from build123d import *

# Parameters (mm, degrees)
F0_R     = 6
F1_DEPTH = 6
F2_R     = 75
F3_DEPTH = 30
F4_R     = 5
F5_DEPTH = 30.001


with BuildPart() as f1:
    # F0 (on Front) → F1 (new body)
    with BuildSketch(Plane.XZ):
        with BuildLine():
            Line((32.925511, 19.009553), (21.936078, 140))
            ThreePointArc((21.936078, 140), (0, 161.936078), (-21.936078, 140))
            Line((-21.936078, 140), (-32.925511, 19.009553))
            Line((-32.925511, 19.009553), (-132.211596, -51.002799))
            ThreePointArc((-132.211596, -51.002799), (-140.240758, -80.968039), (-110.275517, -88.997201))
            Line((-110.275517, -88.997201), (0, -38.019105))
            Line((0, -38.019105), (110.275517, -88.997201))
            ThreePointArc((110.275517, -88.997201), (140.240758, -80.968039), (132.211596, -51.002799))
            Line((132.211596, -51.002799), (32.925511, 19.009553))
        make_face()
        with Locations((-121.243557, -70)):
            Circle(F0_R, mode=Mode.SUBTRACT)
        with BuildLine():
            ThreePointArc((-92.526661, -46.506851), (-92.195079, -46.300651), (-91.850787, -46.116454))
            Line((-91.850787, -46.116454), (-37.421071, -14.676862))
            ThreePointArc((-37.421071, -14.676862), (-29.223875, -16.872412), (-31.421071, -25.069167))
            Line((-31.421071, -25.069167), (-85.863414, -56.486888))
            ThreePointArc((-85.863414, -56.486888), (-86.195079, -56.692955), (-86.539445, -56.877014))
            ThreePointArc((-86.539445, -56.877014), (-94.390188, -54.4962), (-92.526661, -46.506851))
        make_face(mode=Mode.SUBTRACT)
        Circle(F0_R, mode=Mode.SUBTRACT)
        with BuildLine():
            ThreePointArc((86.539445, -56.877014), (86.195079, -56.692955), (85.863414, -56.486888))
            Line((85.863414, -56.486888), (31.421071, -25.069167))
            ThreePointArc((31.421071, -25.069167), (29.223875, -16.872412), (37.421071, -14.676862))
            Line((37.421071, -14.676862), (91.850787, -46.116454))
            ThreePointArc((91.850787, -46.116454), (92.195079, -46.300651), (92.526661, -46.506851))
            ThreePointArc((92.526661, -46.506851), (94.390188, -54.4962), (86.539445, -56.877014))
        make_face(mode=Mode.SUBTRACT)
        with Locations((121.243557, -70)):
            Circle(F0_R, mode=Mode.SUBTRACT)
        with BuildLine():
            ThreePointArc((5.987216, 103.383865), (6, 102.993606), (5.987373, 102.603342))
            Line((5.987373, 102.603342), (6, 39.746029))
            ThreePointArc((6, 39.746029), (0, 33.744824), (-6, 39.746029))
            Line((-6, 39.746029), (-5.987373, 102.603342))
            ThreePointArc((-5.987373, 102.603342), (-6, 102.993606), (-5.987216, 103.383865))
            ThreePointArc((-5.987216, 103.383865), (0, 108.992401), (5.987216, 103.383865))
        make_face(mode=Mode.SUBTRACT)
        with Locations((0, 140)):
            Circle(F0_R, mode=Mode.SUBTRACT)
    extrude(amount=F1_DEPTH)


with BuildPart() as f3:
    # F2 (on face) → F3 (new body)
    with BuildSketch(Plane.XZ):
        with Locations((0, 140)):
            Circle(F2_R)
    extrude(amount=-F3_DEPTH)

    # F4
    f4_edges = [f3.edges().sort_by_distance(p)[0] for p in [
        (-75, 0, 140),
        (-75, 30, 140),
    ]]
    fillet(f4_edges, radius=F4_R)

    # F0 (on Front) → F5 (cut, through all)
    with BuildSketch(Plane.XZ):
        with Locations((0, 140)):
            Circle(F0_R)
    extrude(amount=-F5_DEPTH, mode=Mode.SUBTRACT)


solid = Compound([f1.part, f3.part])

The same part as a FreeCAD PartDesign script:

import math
import FreeCAD as App
import Part
import Sketcher

V = App.Vector


def edges_at(feature, points):
    """Names of the edges that pass closest to the given points."""
    edges = feature.Shape.Edges
    near = lambda p: min(range(len(edges)), key=lambda i: edges[i].distToShape(Part.Vertex(*p))[0])
    return sorted({f"Edge{near(p) + 1}" for p in points})

doc = App.newDocument("Part")
body = doc.addObject("PartDesign::Body", "Body")

sketch1 = body.newObject("Sketcher::SketchObject", "Sketch")
sketch1.AttachmentSupport = (doc.getObject("XZ_Plane"), [""])
sketch1.MapMode = "FlatFace"
sketch1.addGeometry(Part.LineSegment(V(32.925511, 19.009553, 0), V(21.936078, 140, 0)), False)
sketch1.addGeometry(Part.ArcOfCircle(Part.Circle(V(0, 140, 0), V(0, 0, 1), 21.936078), math.radians(0), math.radians(180)), False)
sketch1.addGeometry(Part.LineSegment(V(-21.936078, 140, 0), V(-32.925511, 19.009553, 0)), False)
sketch1.addGeometry(Part.LineSegment(V(-32.925511, 19.009553, 0), V(-132.211596, -51.002799, 0)), False)
sketch1.addGeometry(Part.ArcOfCircle(Part.Circle(V(-121.243557, -70, 0), V(0, 0, 1), 21.936078), math.radians(120), math.radians(300.000001)), False)
sketch1.addGeometry(Part.LineSegment(V(-110.275517, -88.997201, 0), V(0, -38.019105, 0)), False)
sketch1.addGeometry(Part.LineSegment(V(0, -38.019105, 0), V(110.275517, -88.997201, 0)), False)
sketch1.addGeometry(Part.ArcOfCircle(Part.Circle(V(121.243557, -70, 0), V(0, 0, 1), 21.936078), math.radians(-120.000001), math.radians(60)), False)
sketch1.addGeometry(Part.LineSegment(V(132.211596, -51.002799, 0), V(32.925511, 19.009553, 0)), False)
sketch1.addGeometry(Part.Circle(V(-121.243557, -70, 0), V(0, 0, 1), 6), False)
sketch1.addGeometry(Part.ArcOfCircle(Part.Circle(V(-89.194035, -51.4962, 0), V(0, 0, 1), 6), math.radians(123.740863), math.radians(296.259133)), False)
sketch1.addGeometry(Part.ArcOfCircle(Part.Circle(V(-89.19395, -51.496349, 0), V(0, 0, 1), 6.000171), math.radians(116.282257), math.radians(123.740751)), False)
sketch1.addGeometry(Part.LineSegment(V(-91.850787, -46.116454, 0), V(-37.421071, -14.676862, 0)), False)
sketch1.addGeometry(Part.ArcOfCircle(Part.Circle(V(-34.420028, -19.872412, 0), V(0, 0, 1), 6), math.radians(-60.011506), math.radians(120.011505)), False)
sketch1.addGeometry(Part.LineSegment(V(-31.421071, -25.069167, 0), V(-85.863414, -56.486888, 0)), False)
sketch1.addGeometry(Part.ArcOfCircle(Part.Circle(V(-89.194147, -51.496012, 0), V(0, 0, 1), 6.000218), math.radians(-63.740706), math.radians(-56.282266)), False)
sketch1.addGeometry(Part.ArcOfCircle(Part.Circle(V(89.194035, -51.4962, 0), V(0, 0, 1), 6), math.radians(-116.259133), math.radians(56.259137)), False)
sketch1.addGeometry(Part.ArcOfCircle(Part.Circle(V(89.194147, -51.496012, 0), V(0, 0, 1), 6.000218), math.radians(-123.717734), math.radians(-116.259294)), False)
sketch1.addGeometry(Part.LineSegment(V(85.863414, -56.486888, 0), V(31.421071, -25.069167, 0)), False)
sketch1.addGeometry(Part.ArcOfCircle(Part.Circle(V(34.420028, -19.872412, 0), V(0, 0, 1), 6), math.radians(59.988495), math.radians(240.011506)), False)
sketch1.addGeometry(Part.LineSegment(V(37.421071, -14.676862, 0), V(91.850787, -46.116454, 0)), False)
sketch1.addGeometry(Part.ArcOfCircle(Part.Circle(V(89.19395, -51.496349, 0), V(0, 0, 1), 6.000171), math.radians(56.259249), math.radians(63.717743)), False)
sketch1.addGeometry(Part.Circle(V(121.243557, -70, 0), V(0, 0, 1), 6), False)
sketch1.addGeometry(Part.Circle(V(0, 0, 0), V(0, 0, 1), 6), False)
sketch1.addGeometry(Part.ArcOfCircle(Part.Circle(V(0, 102.992401, 0), V(0, 0, 1), 6), math.radians(3.740863), math.radians(176.259137)), False)
sketch1.addGeometry(Part.ArcOfCircle(Part.Circle(V(0.000021, 102.992399, 0), V(0, 0, 1), 5.999979), math.radians(-3.717844), math.radians(3.740893)), False)
sketch1.addGeometry(Part.LineSegment(V(5.987373, 102.603342, 0), V(6, 39.746029, 0)), False)
sketch1.addGeometry(Part.ArcOfCircle(Part.Circle(V(0, 39.744824, 0), V(0, 0, 1), 6), math.radians(179.988494), math.radians(360.011506)), False)
sketch1.addGeometry(Part.LineSegment(V(-6, 39.746029, 0), V(-5.987373, 102.603342, 0)), False)
sketch1.addGeometry(Part.ArcOfCircle(Part.Circle(V(-0.000021, 102.992399, 0), V(0, 0, 1), 5.999979), math.radians(176.259107), math.radians(183.717844)), False)
sketch1.addGeometry(Part.Circle(V(0, 140, 0), V(0, 0, 1), 6), False)
sketch1.addConstraint(Sketcher.Constraint("Coincident", 0, 2, 1, 1))
sketch1.addConstraint(Sketcher.Constraint("Coincident", 1, 2, 2, 1))
sketch1.addConstraint(Sketcher.Constraint("Coincident", 2, 2, 3, 1))
sketch1.addConstraint(Sketcher.Constraint("Coincident", 3, 2, 4, 1))
sketch1.addConstraint(Sketcher.Constraint("Coincident", 4, 2, 5, 1))
sketch1.addConstraint(Sketcher.Constraint("Coincident", 5, 2, 6, 1))
sketch1.addConstraint(Sketcher.Constraint("Coincident", 6, 2, 7, 1))
sketch1.addConstraint(Sketcher.Constraint("Coincident", 7, 2, 8, 1))
sketch1.addConstraint(Sketcher.Constraint("Coincident", 8, 2, 0, 1))
sketch1.addConstraint(Sketcher.Constraint("Coincident", 10, 1, 11, 2))
sketch1.addConstraint(Sketcher.Constraint("Coincident", 11, 1, 12, 1))
sketch1.addConstraint(Sketcher.Constraint("Coincident", 12, 2, 13, 2))
sketch1.addConstraint(Sketcher.Constraint("Coincident", 13, 1, 14, 1))
sketch1.addConstraint(Sketcher.Constraint("Coincident", 14, 2, 15, 2))
sketch1.addConstraint(Sketcher.Constraint("Coincident", 15, 1, 10, 2))
sketch1.addConstraint(Sketcher.Constraint("Coincident", 16, 1, 17, 2))
sketch1.addConstraint(Sketcher.Constraint("Coincident", 17, 1, 18, 1))
sketch1.addConstraint(Sketcher.Constraint("Coincident", 18, 2, 19, 2))
sketch1.addConstraint(Sketcher.Constraint("Coincident", 19, 1, 20, 1))
sketch1.addConstraint(Sketcher.Constraint("Coincident", 20, 2, 21, 2))
sketch1.addConstraint(Sketcher.Constraint("Coincident", 21, 1, 16, 2))
sketch1.addConstraint(Sketcher.Constraint("Coincident", 24, 1, 25, 2))
sketch1.addConstraint(Sketcher.Constraint("Coincident", 25, 1, 26, 1))
sketch1.addConstraint(Sketcher.Constraint("Coincident", 26, 2, 27, 2))
sketch1.addConstraint(Sketcher.Constraint("Coincident", 27, 1, 28, 1))
sketch1.addConstraint(Sketcher.Constraint("Coincident", 28, 2, 29, 2))
sketch1.addConstraint(Sketcher.Constraint("Coincident", 29, 1, 24, 2))
sketch1.addConstraint(Sketcher.Constraint("Coincident", 23, 3, -1, 1))
sketch1.addConstraint(Sketcher.Constraint("Coincident", 9, 3, 4, 3))
sketch1.addConstraint(Sketcher.Constraint("Coincident", 22, 3, 7, 3))
sketch1.addConstraint(Sketcher.Constraint("Coincident", 30, 3, 1, 3))
sketch1.addConstraint(Sketcher.Constraint("PointOnObject", 1, 3, -2))
sketch1.addConstraint(Sketcher.Constraint("PointOnObject", 24, 3, -2))
sketch1.addConstraint(Sketcher.Constraint("PointOnObject", 27, 3, -2))
sketch1.addConstraint(Sketcher.Constraint("PointOnObject", 5, 2, -2))
sketch1.addConstraint(Sketcher.Constraint("Diameter", 9, 12.0))
sketch1.addConstraint(Sketcher.Constraint("Diameter", 22, 12.0))
sketch1.addConstraint(Sketcher.Constraint("Diameter", 23, 12.0))
sketch1.addConstraint(Sketcher.Constraint("Diameter", 30, 12.0))
sketch1.addConstraint(Sketcher.Constraint("Radius", 10, 6.0))
sketch1.addConstraint(Sketcher.Constraint("Radius", 13, 6.0))
sketch1.addConstraint(Sketcher.Constraint("Radius", 16, 6.0))
sketch1.addConstraint(Sketcher.Constraint("Radius", 19, 6.0))
sketch1.addConstraint(Sketcher.Constraint("Radius", 24, 6.0))
sketch1.addConstraint(Sketcher.Constraint("Radius", 27, 6.0))
sketch1.addConstraint(Sketcher.Constraint("DistanceY", -1, 1, 1, 3, 140.0))
sketch1.addConstraint(Sketcher.Constraint("DistanceY", 4, 3, -1, 1, 70.0))
sketch1.addConstraint(Sketcher.Constraint("DistanceY", 7, 3, -1, 1, 70.0))
sketch1.addConstraint(Sketcher.Constraint("DistanceY", -1, 1, 0, 2, 140.0))
sketch1.addConstraint(Sketcher.Constraint("DistanceY", -1, 1, 1, 2, 140.0))
sketch1.addConstraint(Sketcher.Constraint("DistanceX", 12, 2, 13, 1, 6.0))
sketch1.addConstraint(Sketcher.Constraint("DistanceX", 18, 2, 19, 1, 6.0))
sketch1.addConstraint(Sketcher.Constraint("Radius", 4, 21.936078))
sketch1.addConstraint(Sketcher.Constraint("Radius", 7, 21.936078))
sketch1.addConstraint(Sketcher.Constraint("Radius", 11, 6.000171))
sketch1.addConstraint(Sketcher.Constraint("Radius", 15, 6.000218))
sketch1.addConstraint(Sketcher.Constraint("Radius", 17, 6.000218))
sketch1.addConstraint(Sketcher.Constraint("Radius", 21, 6.000171))
sketch1.addConstraint(Sketcher.Constraint("Radius", 25, 5.999979))
sketch1.addConstraint(Sketcher.Constraint("Radius", 29, 5.999979))
sketch1.addConstraint(Sketcher.Constraint("Radius", 1, 21.936078))
sketch1.addConstraint(Sketcher.Constraint("DistanceY", 4, 2, 10, 3, 37.501001))
sketch1.addConstraint(Sketcher.Constraint("DistanceY", 6, 2, 16, 3, 37.501001))
sketch1.addConstraint(Sketcher.Constraint("DistanceY", 15, 1, 15, 3, 5.381002))
sketch1.addConstraint(Sketcher.Constraint("DistanceY", 16, 1, 17, 3, 5.381002))
sketch1.addConstraint(Sketcher.Constraint("Distance", 0, 121.488501))
sketch1.addConstraint(Sketcher.Constraint("Distance", 2, 121.488501))
sketch1.addConstraint(Sketcher.Constraint("Distance", 3, 121.488502))
sketch1.addConstraint(Sketcher.Constraint("Distance", 5, 121.488501))
sketch1.addConstraint(Sketcher.Constraint("Distance", 6, 121.488501))
sketch1.addConstraint(Sketcher.Constraint("Distance", 8, 121.488502))
sketch1.addConstraint(Sketcher.Constraint("DistanceY", 10, 3, -1, 1, 51.4962))
sketch1.addConstraint(Sketcher.Constraint("DistanceY", 16, 3, -1, 1, 51.4962))
sketch1.addConstraint(Sketcher.Constraint("DistanceY", -1, 1, 24, 3, 102.992401))
sketch1.addConstraint(Sketcher.Constraint("DistanceY", -1, 1, 25, 3, 102.992399))
sketch1.addConstraint(Sketcher.Constraint("DistanceY", -1, 1, 29, 3, 102.992399))
sketch1.addConstraint(Sketcher.Constraint("DistanceY", 3, 2, -1, 1, 51.002799))
sketch1.addConstraint(Sketcher.Constraint("DistanceY", 7, 2, -1, 1, 51.002799))
sketch1.addConstraint(Sketcher.Constraint("DistanceY", 15, 3, 13, 3, 31.6236))
sketch1.addConstraint(Sketcher.Constraint("DistanceY", 17, 3, 13, 3, 31.6236))
sketch1.addConstraint(Sketcher.Constraint("DistanceY", 17, 3, 19, 3, 31.6236))
sketch1.addConstraint(Sketcher.Constraint("DistanceX", 11, 3, -1, 1, 89.19395))
sketch1.addConstraint(Sketcher.Constraint("DistanceY", 11, 3, -1, 1, 51.496349))
sketch1.addConstraint(Sketcher.Constraint("DistanceX", -1, 1, 21, 3, 89.19395))
sketch1.addConstraint(Sketcher.Constraint("DistanceY", 21, 3, -1, 1, 51.496349))
sketch1.addConstraint(Sketcher.Constraint("DistanceX", 2, 2, -1, 1, 32.925511))
sketch1.addConstraint(Sketcher.Constraint("DistanceX", 10, 1, -1, 1, 92.526661))
sketch1.addConstraint(Sketcher.Constraint("DistanceX", 12, 2, -1, 1, 37.421071))
sketch1.addConstraint(Sketcher.Constraint("DistanceY", 17, 1, -1, 1, 56.486888))
sketch1.addConstraint(Sketcher.Constraint("DistanceX", -1, 1, 18, 2, 31.421071))
sketch1.addConstraint(Sketcher.Constraint("DistanceY", 19, 1, -1, 1, 14.676862))
sketch1.addConstraint(Sketcher.Constraint("DistanceX", -1, 1, 21, 1, 92.526661))
sketch1.addConstraint(Sketcher.Constraint("DistanceY", -1, 1, 26, 2, 39.746029))
sketch1.addConstraint(Sketcher.Constraint("DistanceY", -1, 1, 27, 1, 39.746029))
sketch1.addConstraint(Sketcher.Constraint("DistanceY", -1, 1, 28, 2, 102.603342))
sketch1.addConstraint(Sketcher.Constraint("DistanceY", 10, 3, 13, 3, 31.623788))
sketch1.addConstraint(Sketcher.Constraint("DistanceX", 4, 3, 13, 3, 86.823529))
sketch1.addConstraint(Sketcher.Constraint("DistanceY", 2, 2, 27, 3, 20.735271))
sketch1.addConstraint(Sketcher.Constraint("DistanceX", 11, 1, 15, 3, 2.65664))
sketch1.addConstraint(Sketcher.Constraint("DistanceY", 14, 2, 11, 3, 4.990539))
sketch1.addConstraint(Sketcher.Constraint("DistanceX", 17, 3, 20, 2, 2.65664))
sketch1.addConstraint(Sketcher.Constraint("DistanceY", 25, 1, 24, 3, 0.389059))
sketch1.addConstraint(Sketcher.Constraint("DistanceX", 28, 2, 24, 1, 11.974589))
sketch1.addConstraint(Sketcher.Constraint("DistanceX", 29, 1, 24, 1, 11.974432))
pad1 = body.newObject("PartDesign::Pad", "Pad")
pad1.Profile = sketch1
pad1.Length = 6
body2 = doc.addObject("PartDesign::Body", "Body001")

sketch2 = body2.newObject("Sketcher::SketchObject", "Sketch001")
sketch2.AttachmentSupport = (doc.getObject("XZ_Plane001"), [""])
sketch2.MapMode = "FlatFace"
sketch2.addGeometry(Part.Circle(V(0, 140, 0), V(0, 0, 1), 75), False)
sketch2.addConstraint(Sketcher.Constraint("PointOnObject", 0, 3, -2))
sketch2.addConstraint(Sketcher.Constraint("Diameter", 0, 150.0))
sketch2.addConstraint(Sketcher.Constraint("DistanceY", -1, 1, 0, 3, 140.0))
pad2 = body2.newObject("PartDesign::Pad", "Pad001")
pad2.Profile = sketch2
pad2.Length = 30
pad2.Reversed = True
doc.recompute()

fillet = body2.newObject("PartDesign::Fillet", "Fillet")
fillet.Base = (pad2, edges_at(pad2, [(-75, 0, 140), (-75, 30, 140)]))
fillet.Radius = 5

sketch3 = body2.newObject("Sketcher::SketchObject", "Sketch002")
sketch3.AttachmentSupport = (doc.getObject("XZ_Plane001"), [""])
sketch3.MapMode = "FlatFace"
sketch3.addGeometry(Part.Circle(V(0, 140, 0), V(0, 0, 1), 6), False)
sketch3.addConstraint(Sketcher.Constraint("PointOnObject", 0, 3, -2))
sketch3.addConstraint(Sketcher.Constraint("Diameter", 0, 12.0))
sketch3.addConstraint(Sketcher.Constraint("DistanceY", -1, 1, 0, 3, 140.0))
pocket1 = body2.newObject("PartDesign::Pocket", "Pocket")
pocket1.Profile = sketch3
pocket1.Type = "ThroughAll"

doc.recompute()
